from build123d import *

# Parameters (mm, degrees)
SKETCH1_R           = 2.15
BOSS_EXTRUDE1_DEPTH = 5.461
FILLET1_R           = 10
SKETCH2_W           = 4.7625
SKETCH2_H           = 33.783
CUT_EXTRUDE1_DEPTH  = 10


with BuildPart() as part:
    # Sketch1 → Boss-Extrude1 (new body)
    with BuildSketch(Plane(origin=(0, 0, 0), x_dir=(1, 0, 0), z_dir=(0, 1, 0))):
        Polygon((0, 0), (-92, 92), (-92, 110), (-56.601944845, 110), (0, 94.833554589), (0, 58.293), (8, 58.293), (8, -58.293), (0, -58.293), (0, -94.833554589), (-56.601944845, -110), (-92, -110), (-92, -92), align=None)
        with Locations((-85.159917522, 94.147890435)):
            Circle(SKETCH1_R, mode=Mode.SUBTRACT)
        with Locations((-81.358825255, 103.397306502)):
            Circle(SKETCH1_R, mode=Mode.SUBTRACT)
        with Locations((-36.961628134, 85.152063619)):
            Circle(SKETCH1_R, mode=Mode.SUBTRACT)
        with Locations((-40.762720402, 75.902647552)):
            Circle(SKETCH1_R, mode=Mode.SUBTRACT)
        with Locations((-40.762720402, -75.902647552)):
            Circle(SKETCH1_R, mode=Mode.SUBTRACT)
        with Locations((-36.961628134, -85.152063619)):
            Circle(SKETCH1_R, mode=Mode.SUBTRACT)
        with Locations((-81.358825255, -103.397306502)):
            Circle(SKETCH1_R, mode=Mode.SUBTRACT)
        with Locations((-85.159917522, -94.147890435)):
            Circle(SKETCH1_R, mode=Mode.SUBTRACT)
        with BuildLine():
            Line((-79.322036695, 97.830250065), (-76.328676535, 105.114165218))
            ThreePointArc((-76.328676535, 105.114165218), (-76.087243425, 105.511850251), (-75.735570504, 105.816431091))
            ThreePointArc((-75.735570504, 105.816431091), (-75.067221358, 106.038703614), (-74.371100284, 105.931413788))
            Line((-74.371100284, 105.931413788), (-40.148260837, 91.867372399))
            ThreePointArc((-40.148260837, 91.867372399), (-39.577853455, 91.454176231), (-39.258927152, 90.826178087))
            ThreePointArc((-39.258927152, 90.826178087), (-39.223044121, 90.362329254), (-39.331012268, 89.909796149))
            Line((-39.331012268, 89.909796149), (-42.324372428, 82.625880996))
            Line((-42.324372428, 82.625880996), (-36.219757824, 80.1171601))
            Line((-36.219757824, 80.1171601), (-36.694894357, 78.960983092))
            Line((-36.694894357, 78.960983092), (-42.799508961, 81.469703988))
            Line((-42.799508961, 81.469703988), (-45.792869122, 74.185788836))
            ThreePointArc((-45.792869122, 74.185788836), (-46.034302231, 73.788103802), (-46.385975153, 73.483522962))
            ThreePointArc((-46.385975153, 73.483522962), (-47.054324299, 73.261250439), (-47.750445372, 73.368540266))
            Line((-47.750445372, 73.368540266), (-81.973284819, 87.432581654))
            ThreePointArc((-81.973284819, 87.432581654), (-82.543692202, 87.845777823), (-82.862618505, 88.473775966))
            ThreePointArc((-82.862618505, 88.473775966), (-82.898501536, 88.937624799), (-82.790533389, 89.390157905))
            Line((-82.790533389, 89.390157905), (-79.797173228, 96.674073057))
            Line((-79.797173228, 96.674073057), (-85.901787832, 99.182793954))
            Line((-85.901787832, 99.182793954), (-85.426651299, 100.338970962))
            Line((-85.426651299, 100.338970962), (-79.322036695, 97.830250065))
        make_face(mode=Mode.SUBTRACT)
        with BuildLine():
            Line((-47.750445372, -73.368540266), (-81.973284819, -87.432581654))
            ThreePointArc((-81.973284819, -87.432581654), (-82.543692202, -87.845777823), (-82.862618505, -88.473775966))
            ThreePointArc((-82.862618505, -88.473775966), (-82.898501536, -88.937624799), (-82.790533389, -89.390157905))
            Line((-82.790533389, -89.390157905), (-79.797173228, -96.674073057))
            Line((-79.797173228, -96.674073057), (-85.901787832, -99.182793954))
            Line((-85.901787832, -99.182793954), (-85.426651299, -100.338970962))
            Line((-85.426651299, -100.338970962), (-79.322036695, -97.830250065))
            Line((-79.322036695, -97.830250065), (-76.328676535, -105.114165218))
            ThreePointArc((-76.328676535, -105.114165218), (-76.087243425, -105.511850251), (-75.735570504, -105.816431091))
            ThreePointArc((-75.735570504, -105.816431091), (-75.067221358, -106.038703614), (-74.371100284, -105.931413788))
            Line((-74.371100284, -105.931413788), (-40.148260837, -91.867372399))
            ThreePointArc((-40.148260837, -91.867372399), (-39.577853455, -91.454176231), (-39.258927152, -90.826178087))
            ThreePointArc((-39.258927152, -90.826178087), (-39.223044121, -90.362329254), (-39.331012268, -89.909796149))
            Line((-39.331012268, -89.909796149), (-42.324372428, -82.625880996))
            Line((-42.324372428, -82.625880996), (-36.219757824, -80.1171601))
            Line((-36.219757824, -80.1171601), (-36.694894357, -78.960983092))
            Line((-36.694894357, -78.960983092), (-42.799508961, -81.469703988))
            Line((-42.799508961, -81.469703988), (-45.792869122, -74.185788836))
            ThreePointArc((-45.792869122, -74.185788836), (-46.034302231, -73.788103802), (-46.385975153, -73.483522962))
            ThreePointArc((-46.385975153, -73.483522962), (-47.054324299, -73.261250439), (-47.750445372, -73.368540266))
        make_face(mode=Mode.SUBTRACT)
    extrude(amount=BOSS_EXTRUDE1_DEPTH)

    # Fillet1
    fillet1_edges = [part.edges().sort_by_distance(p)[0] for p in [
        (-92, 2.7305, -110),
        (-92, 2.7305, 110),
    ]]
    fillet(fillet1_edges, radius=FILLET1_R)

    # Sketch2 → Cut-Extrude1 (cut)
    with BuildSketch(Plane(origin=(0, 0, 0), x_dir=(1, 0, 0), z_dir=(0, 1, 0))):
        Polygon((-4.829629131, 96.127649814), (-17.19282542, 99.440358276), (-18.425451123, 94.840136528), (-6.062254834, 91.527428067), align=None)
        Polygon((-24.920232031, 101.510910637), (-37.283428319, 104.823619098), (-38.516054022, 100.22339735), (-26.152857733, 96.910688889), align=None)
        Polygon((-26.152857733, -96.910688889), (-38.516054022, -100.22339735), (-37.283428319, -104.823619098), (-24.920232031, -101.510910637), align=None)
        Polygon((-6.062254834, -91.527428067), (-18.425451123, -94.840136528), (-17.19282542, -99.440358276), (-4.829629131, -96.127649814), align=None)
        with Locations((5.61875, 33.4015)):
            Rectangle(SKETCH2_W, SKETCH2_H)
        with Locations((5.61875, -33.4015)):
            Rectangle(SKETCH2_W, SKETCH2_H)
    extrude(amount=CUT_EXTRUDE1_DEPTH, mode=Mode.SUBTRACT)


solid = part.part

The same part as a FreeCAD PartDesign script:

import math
import FreeCAD as App
import Part
import Sketcher

V = App.Vector
Q = App.Units.Quantity


def edges_at(feature, points):
    """Names of the edges that pass closest to the given points."""
    edges = feature.Shape.Edges
    near = lambda p: min(range(len(edges)), key=lambda i: edges[i].distToShape(Part.Vertex(*p))[0])
    return sorted({f"Edge{near(p) + 1}" for p in points})

doc = App.newDocument("Part")
body = doc.addObject("PartDesign::Body", "Body")

# Sketch on XZ plane
sketch1 = body.newObject("Sketcher::SketchObject", "Sketch")
sketch1.AttachmentSupport = (doc.getObject("XZ_Plane"), [""])
sketch1.MapMode = "FlatFace"
sketch1.addGeometry([
    Part.LineSegment(V(-92, -92, 0), V(0, 0, 0)),  # 0
    Part.LineSegment(V(0, 0, 0), V(-92, 92, 0)),  # 1
    Part.LineSegment(V(-92, 92, 0), V(-92, 110, 0)),  # 2
    Part.LineSegment(V(-92, 110, 0), V(-56.601945, 110, 0)),  # 3
    Part.LineSegment(V(-56.601945, 110, 0), V(0, 94.833555, 0)),  # 4
    Part.LineSegment(V(0, 94.833555, 0), V(0, 58.293, 0)),  # 5
    Part.LineSegment(V(0, 58.293, 0), V(8, 58.293, 0)),  # 6
    Part.LineSegment(V(8, 58.293, 0), V(8, -58.293, 0)),  # 7
    Part.LineSegment(V(8, -58.293, 0), V(0, -58.293, 0)),  # 8
    Part.LineSegment(V(0, -58.293, 0), V(0, -94.833555, 0)),  # 9
    Part.LineSegment(V(0, -94.833555, 0), V(-56.601945, -110, 0)),  # 10
    Part.LineSegment(V(-56.601945, -110, 0), V(-92, -110, 0)),  # 11
    Part.LineSegment(V(-92, -110, 0), V(-92, -92, 0)),  # 12
    Part.Circle(V(-36.961628, 85.152064, 0), V(0, 0, 1), 2.15),  # 13
    Part.Circle(V(-40.76272, 75.902648, 0), V(0, 0, 1), 2.15),  # 14
    Part.ArcOfCircle(Part.Circle(V(-47.180282, 74.755953, 0), V(0, 0, 1), 1.5), math.radians(-112.340449), math.radians(-58.025783)),  # 15
    Part.ArcOfCircle(Part.Circle(V(-47.180282, 74.755953, 0), V(0, 0, 1), 1.5), math.radians(-58.025783), math.radians(-22.340448)),  # 16
    Part.LineSegment(V(-45.792869, 74.185789, 0), V(-42.799509, 81.469704, 0)),  # 17
    Part.LineSegment(V(-42.799509, 81.469704, 0), V(-36.694894, 78.960983, 0)),  # 18
    Part.LineSegment(V(-36.694894, 78.960983, 0), V(-36.219758, 80.11716, 0)),  # 19
    Part.LineSegment(V(-36.219758, 80.11716, 0), V(-42.324372, 82.625881, 0)),  # 20
    Part.LineSegment(V(-42.324372, 82.625881, 0), V(-39.331012, 89.909796, 0)),  # 21
    Part.ArcOfCircle(Part.Circle(V(-40.718425, 90.47996, 0), V(0, 0, 1), 1.5), math.radians(-22.340449), math.radians(13.344886)),  # 22
    Part.ArcOfCircle(Part.Circle(V(-40.718425, 90.47996, 0), V(0, 0, 1), 1.5), math.radians(13.344886), math.radians(67.659551)),  # 23
    Part.LineSegment(V(-40.148261, 91.867372, 0), V(-74.3711, 105.931414, 0)),  # 24
    Part.ArcOfCircle(Part.Circle(V(-74.941264, 104.544001, 0), V(0, 0, 1), 1.5), math.radians(67.659551), math.radians(121.974217)),  # 25
    Part.ArcOfCircle(Part.Circle(V(-74.941264, 104.544001, 0), V(0, 0, 1), 1.5), math.radians(121.974217), math.radians(157.659551)),  # 26
    Part.LineSegment(V(-76.328677, 105.114165, 0), V(-79.322037, 97.83025, 0)),  # 27
    Part.LineSegment(V(-79.322037, 97.83025, 0), V(-85.426651, 100.338971, 0)),  # 28
    Part.LineSegment(V(-85.426651, 100.338971, 0), V(-85.901788, 99.182794, 0)),  # 29
    Part.LineSegment(V(-85.901788, 99.182794, 0), V(-79.797173, 96.674073, 0)),  # 30
    Part.LineSegment(V(-79.797173, 96.674073, 0), V(-82.790533, 89.390158, 0)),  # 31
    Part.ArcOfCircle(Part.Circle(V(-81.403121, 88.819994, 0), V(0, 0, 1), 1.5), math.radians(157.659551), math.radians(193.344886)),  # 32
    Part.ArcOfCircle(Part.Circle(V(-81.403121, 88.819994, 0), V(0, 0, 1), 1.5), math.radians(-166.655114), math.radians(-112.340449)),  # 33
    Part.LineSegment(V(-81.973285, 87.432582, 0), V(-47.750445, 73.36854, 0)),  # 34
    Part.Circle(V(-81.358825, 103.397307, 0), V(0, 0, 1), 2.15),  # 35
    Part.Circle(V(-85.159918, 94.14789, 0), V(0, 0, 1), 2.15),  # 36
    Part.Circle(V(-40.76272, -75.902648, 0), V(0, 0, 1), 2.15),  # 37
    Part.Circle(V(-36.961628, -85.152064, 0), V(0, 0, 1), 2.15),  # 38
    Part.LineSegment(V(-79.322037, -97.83025, 0), V(-76.328677, -105.114165, 0)),  # 39
    Part.ArcOfCircle(Part.Circle(V(-74.941264, -104.544001, 0), V(0, 0, 1), 1.5), math.radians(-157.659551), math.radians(-121.974217)),  # 40
    Part.ArcOfCircle(Part.Circle(V(-74.941264, -104.544001, 0), V(0, 0, 1), 1.5), math.radians(-121.974217), math.radians(-67.659551)),  # 41
    Part.LineSegment(V(-74.3711, -105.931414, 0), V(-40.148261, -91.867372, 0)),  # 42
    Part.ArcOfCircle(Part.Circle(V(-40.718425, -90.47996, 0), V(0, 0, 1), 1.5), math.radians(-67.659551), math.radians(-13.344886)),  # 43
    Part.ArcOfCircle(Part.Circle(V(-40.718425, -90.47996, 0), V(0, 0, 1), 1.5), math.radians(-13.344886), math.radians(22.340449)),  # 44
    Part.LineSegment(V(-39.331012, -89.909796, 0), V(-42.324372, -82.625881, 0)),  # 45
    Part.LineSegment(V(-42.324372, -82.625881, 0), V(-36.219758, -80.11716, 0)),  # 46
    Part.LineSegment(V(-36.219758, -80.11716, 0), V(-36.694894, -78.960983, 0)),  # 47
    Part.LineSegment(V(-36.694894, -78.960983, 0), V(-42.799509, -81.469704, 0)),  # 48
    Part.LineSegment(V(-42.799509, -81.469704, 0), V(-45.792869, -74.185789, 0)),  # 49
    Part.ArcOfCircle(Part.Circle(V(-47.180282, -74.755953, 0), V(0, 0, 1), 1.5), math.radians(22.340448), math.radians(58.025783)),  # 50
    Part.ArcOfCircle(Part.Circle(V(-47.180282, -74.755953, 0), V(0, 0, 1), 1.5), math.radians(58.025783), math.radians(112.340449)),  # 51
    Part.LineSegment(V(-47.750445, -73.36854, 0), V(-81.973285, -87.432582, 0)),  # 52
    Part.ArcOfCircle(Part.Circle(V(-81.403121, -88.819994, 0), V(0, 0, 1), 1.5), math.radians(112.340449), math.radians(166.655114)),  # 53
    Part.ArcOfCircle(Part.Circle(V(-81.403121, -88.819994, 0), V(0, 0, 1), 1.5), math.radians(166.655114), math.radians(202.340449)),  # 54
    Part.LineSegment(V(-82.790533, -89.390158, 0), V(-79.797173, -96.674073, 0)),  # 55
    Part.LineSegment(V(-79.797173, -96.674073, 0), V(-85.901788, -99.182794, 0)),  # 56
    Part.LineSegment(V(-85.901788, -99.182794, 0), V(-85.426651, -100.338971, 0)),  # 57
    Part.LineSegment(V(-85.426651, -100.338971, 0), V(-79.322037, -97.83025, 0)),  # 58
    Part.Circle(V(-81.358825, -103.397307, 0), V(0, 0, 1), 2.15),  # 59
    Part.Circle(V(-85.159918, -94.14789, 0), V(0, 0, 1), 2.15),  # 60
], False)
sketch1.addConstraint([
    Sketcher.Constraint("Coincident", 0, 2, 1, 1),
    Sketcher.Constraint("Coincident", 1, 2, 2, 1),
    Sketcher.Constraint("Coincident", 2, 2, 3, 1),
    Sketcher.Constraint("Coincident", 3, 2, 4, 1),
    Sketcher.Constraint("Coincident", 4, 2, 5, 1),
    Sketcher.Constraint("Coincident", 5, 2, 6, 1),
    Sketcher.Constraint("Coincident", 6, 2, 7, 1),
    Sketcher.Constraint("Coincident", 7, 2, 8, 1),
    Sketcher.Constraint("Coincident", 8, 2, 9, 1),
    Sketcher.Constraint("Coincident", 9, 2, 10, 1),
    Sketcher.Constraint("Coincident", 10, 2, 11, 1),
    Sketcher.Constraint("Coincident", 11, 2, 12, 1),
    Sketcher.Constraint("Coincident", 12, 2, 0, 1),
    Sketcher.Constraint("Tangent", 15, 2, 16, 1),
    Sketcher.Constraint("Tangent", 16, 2, 17, 1),
    Sketcher.Constraint("Coincident", 17, 2, 18, 1),
    Sketcher.Constraint("Coincident", 18, 2, 19, 1),
    Sketcher.Constraint("Coincident", 19, 2, 20, 1),
    Sketcher.Constraint("Coincident", 20, 2, 21, 1),
    Sketcher.Constraint("Tangent", 21, 2, 22, 1),
    Sketcher.Constraint("Tangent", 22, 2, 23, 1),
    Sketcher.Constraint("Tangent", 23, 2, 24, 1),
    Sketcher.Constraint("Tangent", 24, 2, 25, 1),
    Sketcher.Constraint("Tangent", 25, 2, 26, 1),
    Sketcher.Constraint("Tangent", 26, 2, 27, 1),
    Sketcher.Constraint("Coincident", 27, 2, 28, 1),
    Sketcher.Constraint("Coincident", 28, 2, 29, 1),
    Sketcher.Constraint("Coincident", 29, 2, 30, 1),
    Sketcher.Constraint("Coincident", 30, 2, 31, 1),
    Sketcher.Constraint("Tangent", 31, 2, 32, 1),
    Sketcher.Constraint("Tangent", 32, 2, 33, 1),
    Sketcher.Constraint("Tangent", 33, 2, 34, 1),
    Sketcher.Constraint("Tangent", 34, 2, 15, 1),
    Sketcher.Constraint("Tangent", 39, 2, 40, 1),
    Sketcher.Constraint("Tangent", 40, 2, 41, 1),
    Sketcher.Constraint("Tangent", 41, 2, 42, 1),
    Sketcher.Constraint("Tangent", 42, 2, 43, 1),
    Sketcher.Constraint("Tangent", 43, 2, 44, 1),
    Sketcher.Constraint("Tangent", 44, 2, 45, 1),
    Sketcher.Constraint("Coincident", 45, 2, 46, 1),
    Sketcher.Constraint("Coincident", 46, 2, 47, 1),
    Sketcher.Constraint("Coincident", 47, 2, 48, 1),
    Sketcher.Constraint("Coincident", 48, 2, 49, 1),
    Sketcher.Constraint("Tangent", 49, 2, 50, 1),
    Sketcher.Constraint("Tangent", 50, 2, 51, 1),
    Sketcher.Constraint("Tangent", 51, 2, 52, 1),
    Sketcher.Constraint("Tangent", 52, 2, 53, 1),
    Sketcher.Constraint("Tangent", 53, 2, 54, 1),
    Sketcher.Constraint("Tangent", 54, 2, 55, 1),
    Sketcher.Constraint("Coincident", 55, 2, 56, 1),
    Sketcher.Constraint("Coincident", 56, 2, 57, 1),
    Sketcher.Constraint("Coincident", 57, 2, 58, 1),
    Sketcher.Constraint("Coincident", 58, 2, 39, 1),
    Sketcher.Constraint("Vertical", 2),
    Sketcher.Constraint("Horizontal", 3),
    Sketcher.Constraint("Vertical", 5),
    Sketcher.Constraint("Horizontal", 6),
    Sketcher.Constraint("Vertical", 7),
    Sketcher.Constraint("Horizontal", 8),
    Sketcher.Constraint("Vertical", 9),
    Sketcher.Constraint("Horizontal", 11),
    Sketcher.Constraint("Vertical", 12),
    Sketcher.Constraint("Coincident", 0, 2, -1, 1),
    Sketcher.Constraint("Equal", 13, 14),
    Sketcher.Constraint("Equal", 15, 16),
    Sketcher.Constraint("Equal", 16, 22),
    Sketcher.Constraint("Equal", 22, 23),
    Sketcher.Constraint("Equal", 23, 25),
    Sketcher.Constraint("Equal", 25, 26),
    Sketcher.Constraint("Equal", 26, 32),
    Sketcher.Constraint("Equal", 32, 33),
    Sketcher.Constraint("Equal", 14, 35),
    Sketcher.Constraint("Equal", 35, 36),
    Sketcher.Constraint("Equal", 36, 37),
    Sketcher.Constraint("Equal", 37, 38),
    Sketcher.Constraint("Equal", 33, 40),
    Sketcher.Constraint("Equal", 40, 41),
    Sketcher.Constraint("Equal", 41, 43),
    Sketcher.Constraint("Equal", 43, 44),
    Sketcher.Constraint("Equal", 44, 50),
    Sketcher.Constraint("Equal", 50, 51),
    Sketcher.Constraint("Equal", 51, 53),
    Sketcher.Constraint("Equal", 53, 54),
    Sketcher.Constraint("Equal", 38, 59),
    Sketcher.Constraint("Equal", 59, 60),
    Sketcher.Constraint("Symmetric", 5, 2, 8, 2, -1, 1),
    Sketcher.Constraint("Symmetric", 14, 3, 37, 3, -1),
    Sketcher.Constraint("Symmetric", 13, 3, 38, 3, -1),
    Sketcher.Constraint("Symmetric", 25, 3, 40, 3, -1),
    Sketcher.Constraint("Symmetric", 22, 3, 43, 3, -1),
    Sketcher.Constraint("Symmetric", 15, 3, 50, 3, -1),
    Sketcher.Constraint("Symmetric", 32, 3, 53, 3, -1),
    Sketcher.Constraint("Symmetric", 35, 3, 59, 3, -1),
    Sketcher.Constraint("Symmetric", 36, 3, 60, 3, -1),
    Sketcher.Constraint("Symmetric", 4, 2, 9, 2, -1),
    Sketcher.Constraint("Symmetric", 3, 2, 10, 2, -1),
    Sketcher.Constraint("Symmetric", 1, 2, 12, 2, -1),
    Sketcher.Constraint("Symmetric", 20, 2, 45, 2, -1),
    Sketcher.Constraint("Symmetric", 19, 2, 46, 2, -1),
    Sketcher.Constraint("Symmetric", 18, 2, 47, 2, -1),
    Sketcher.Constraint("Symmetric", 17, 2, 48, 2, -1),
    Sketcher.Constraint("Symmetric", 30, 2, 55, 2, -1),
    Sketcher.Constraint("Symmetric", 29, 2, 56, 2, -1),
    Sketcher.Constraint("Symmetric", 28, 2, 57, 2, -1),
    Sketcher.Constraint("Symmetric", 27, 2, 58, 2, -1),
    Sketcher.Constraint("Perpendicular", 0, 1),
    Sketcher.Constraint("Perpendicular", 17, 18),
    Sketcher.Constraint("Perpendicular", 18, 19),
    Sketcher.Constraint("Perpendicular", 19, 20),
    Sketcher.Constraint("Perpendicular", 20, 21),
    Sketcher.Constraint("Perpendicular", 21, 24),
    Sketcher.Constraint("Perpendicular", 24, 27),
    Sketcher.Constraint("Perpendicular", 27, 28),
    Sketcher.Constraint("Perpendicular", 28, 29),
    Sketcher.Constraint("Perpendicular", 29, 30),
    Sketcher.Constraint("Perpendicular", 30, 31),
    Sketcher.Constraint("Perpendicular", 31, 34),
    Sketcher.Constraint("Vertical", 25, 2, 40, 2),
    Sketcher.Constraint("Vertical", 22, 2, 43, 2),
    Sketcher.Constraint("Vertical", 15, 2, 50, 2),
    Sketcher.Constraint("Vertical", 32, 2, 53, 2),
    Sketcher.Constraint("Equal", 18, 20),
    Sketcher.Constraint("Equal", 17, 21),
    Sketcher.Constraint("Equal", 21, 27),
    Sketcher.Constraint("Equal", 20, 28),
    Sketcher.Constraint("Equal", 19, 29),
    Sketcher.Constraint("Equal", 28, 30),
    Sketcher.Constraint("Diameter", 13, 4.3),
    Sketcher.Constraint("Radius", 15, 1.5),
    Sketcher.Constraint("DistanceX", 6, 1, 6, 2, 8.0),
    Sketcher.Constraint("DistanceY", 2, 1, 2, 2, 18.0),
    Sketcher.Constraint("Angle", 4, Q("-15 deg")),
    Sketcher.Constraint("Distance", 24, 37.0),
    Sketcher.Constraint("DistanceX", 1, 2, -1, 1, 92.0),
    Sketcher.Constraint("Distance", 18, 6.6),
    Sketcher.Constraint("Distance", 19, 1.25),
    Sketcher.Constraint("DistanceY", 7, 2, 7, 1, 116.586),
    Sketcher.Constraint("Distance", 17, 7.875),
    Sketcher.Constraint("DistanceY", -1, 1, 25, 3, 104.544001),
    Sketcher.Constraint("DistanceX", 24, 2, -1, 1, 74.3711),
    Sketcher.Constraint("DistanceX", 3, 1, 3, 2, 35.398055),
    Sketcher.Constraint("DistanceX", 13, 3, -1, 1, 36.961628),
    Sketcher.Constraint("DistanceX", 14, 3, -1, 1, 40.76272),
    Sketcher.Constraint("DistanceX", 15, 3, -1, 1, 47.180282),
    Sketcher.Constraint("DistanceY", -1, 1, 36, 3, 94.14789),
    Sketcher.Constraint("DistanceY", -1, 1, 22, 2, 90.826178),
    Sketcher.Constraint("DistanceX", 25, 2, -1, 1, 75.735571),
    Sketcher.Constraint("DistanceX", 32, 2, -1, 1, 82.862619),
    Sketcher.Constraint("DistanceY", -1, 1, 13, 3, 85.152064),
    Sketcher.Constraint("DistanceY", -1, 1, 14, 3, 75.902648),
    Sketcher.Constraint("DistanceX", 35, 3, -1, 1, 81.358825),
    Sketcher.Constraint("DistanceY", -1, 1, 35, 3, 103.397307),
    Sketcher.Constraint("DistanceX", 36, 3, -1, 1, 85.159918),
    Sketcher.Constraint("DistanceX", 15, 2, -1, 1, 46.385975),
])
pad1 = body.newObject("PartDesign::Pad", "Pad")
pad1.Profile = sketch1
pad1.Length = 5.461
pad1.Reversed = True
doc.recompute()

fillet = body.newObject("PartDesign::Fillet", "Fillet")
fillet.Base = (pad1, edges_at(pad1, [(-92, 2.731, -110), (-92, 2.731, 110)]))
fillet.Radius = 10

# Sketch on XZ plane
sketch2 = body.newObject("Sketcher::SketchObject", "Sketch001")
sketch2.AttachmentSupport = (doc.getObject("XZ_Plane"), [""])
sketch2.MapMode = "FlatFace"
sketch2.addGeometry([
    Part.LineSegment(V(-4.829629, -96.12765, 0), V(-17.192825, -99.440358, 0)),  # 0
    Part.LineSegment(V(-17.192825, -99.440358, 0), V(-18.425451, -94.840137, 0)),  # 1
    Part.LineSegment(V(-18.425451, -94.840137, 0), V(-6.062255, -91.527428, 0)),  # 2
    Part.LineSegment(V(-6.062255, -91.527428, 0), V(-4.829629, -96.12765, 0)),  # 3
    Part.LineSegment(V(-24.920232, -101.510911, 0), V(-37.283428, -104.823619, 0)),  # 4
    Part.LineSegment(V(-37.283428, -104.823619, 0), V(-38.516054, -100.223397, 0)),  # 5
    Part.LineSegment(V(-38.516054, -100.223397, 0), V(-26.152858, -96.910689, 0)),  # 6
    Part.LineSegment(V(-26.152858, -96.910689, 0), V(-24.920232, -101.510911, 0)),  # 7
    Part.LineSegment(V(-26.152858, 96.910689, 0), V(-38.516054, 100.223397, 0)),  # 8
    Part.LineSegment(V(-38.516054, 100.223397, 0), V(-37.283428, 104.823619, 0)),  # 9
    Part.LineSegment(V(-37.283428, 104.823619, 0), V(-24.920232, 101.510911, 0)),  # 10
    Part.LineSegment(V(-24.920232, 101.510911, 0), V(-26.152858, 96.910689, 0)),  # 11
    Part.LineSegment(V(-6.062255, 91.527428, 0), V(-18.425451, 94.840137, 0)),  # 12
    Part.LineSegment(V(-18.425451, 94.840137, 0), V(-17.192825, 99.440358, 0)),  # 13
    Part.LineSegment(V(-17.192825, 99.440358, 0), V(-4.829629, 96.12765, 0)),  # 14
    Part.LineSegment(V(-4.829629, 96.12765, 0), V(-6.062255, 91.527428, 0)),  # 15
    Part.LineSegment(V(3.2375, -50.293, 0), V(3.2375, -16.51, 0)),  # 16
    Part.LineSegment(V(3.2375, -16.51, 0), V(8, -16.51, 0)),  # 17
    Part.LineSegment(V(8, -16.51, 0), V(8, -50.293, 0)),  # 18
    Part.LineSegment(V(8, -50.293, 0), V(3.2375, -50.293, 0)),  # 19
    Part.LineSegment(V(3.2375, 16.51, 0), V(3.2375, 50.293, 0)),  # 20
    Part.LineSegment(V(3.2375, 50.293, 0), V(8, 50.293, 0)),  # 21
    Part.LineSegment(V(8, 50.293, 0), V(8, 16.51, 0)),  # 22
    Part.LineSegment(V(8, 16.51, 0), V(3.2375, 16.51, 0)),  # 23
], False)
sketch2.addConstraint([
    Sketcher.Constraint("Coincident", 0, 2, 1, 1),
    Sketcher.Constraint("Coincident", 1, 2, 2, 1),
    Sketcher.Constraint("Coincident", 2, 2, 3, 1),
    Sketcher.Constraint("Coincident", 3, 2, 0, 1),
    Sketcher.Constraint("Coincident", 4, 2, 5, 1),
    Sketcher.Constraint("Coincident", 5, 2, 6, 1),
    Sketcher.Constraint("Coincident", 6, 2, 7, 1),
    Sketcher.Constraint("Coincident", 7, 2, 4, 1),
    Sketcher.Constraint("Coincident", 8, 2, 9, 1),
    Sketcher.Constraint("Coincident", 9, 2, 10, 1),
    Sketcher.Constraint("Coincident", 10, 2, 11, 1),
    Sketcher.Constraint("Coincident", 11, 2, 8, 1),
    Sketcher.Constraint("Coincident", 12, 2, 13, 1),
    Sketcher.Constraint("Coincident", 13, 2, 14, 1),
    Sketcher.Constraint("Coincident", 14, 2, 15, 1),
    Sketcher.Constraint("Coincident", 15, 2, 12, 1),
    Sketcher.Constraint("Coincident", 16, 2, 17, 1),
    Sketcher.Constraint("Coincident", 17, 2, 18, 1),
    Sketcher.Constraint("Coincident", 18, 2, 19, 1),
    Sketcher.Constraint("Coincident", 19, 2, 16, 1),
    Sketcher.Constraint("Coincident", 20, 2, 21, 1),
    Sketcher.Constraint("Coincident", 21, 2, 22, 1),
    Sketcher.Constraint("Coincident", 22, 2, 23, 1),
    Sketcher.Constraint("Coincident", 23, 2, 20, 1),
    Sketcher.Constraint("Vertical", 16),
    Sketcher.Constraint("Horizontal", 17),
    Sketcher.Constraint("Vertical", 18),
    Sketcher.Constraint("Horizontal", 19),
    Sketcher.Constraint("Vertical", 20),
    Sketcher.Constraint("Horizontal", 21),
    Sketcher.Constraint("Vertical", 22),
    Sketcher.Constraint("Horizontal", 23),
    Sketcher.Constraint("Symmetric", 5, 2, 8, 2, -1),
    Sketcher.Constraint("Symmetric", 4, 2, 9, 2, -1),
    Sketcher.Constraint("Symmetric", 7, 2, 10, 2, -1),
    Sketcher.Constraint("Symmetric", 6, 2, 11, 2, -1),
    Sketcher.Constraint("Symmetric", 1, 2, 12, 2, -1),
    Sketcher.Constraint("Symmetric", 0, 2, 13, 2, -1),
    Sketcher.Constraint("Symmetric", 3, 2, 14, 2, -1),
    Sketcher.Constraint("Symmetric", 2, 2, 15, 2, -1),
    Sketcher.Constraint("Symmetric", 19, 2, 20, 2, -1),
    Sketcher.Constraint("Symmetric", 17, 2, 22, 2, -1),
    Sketcher.Constraint("Perpendicular", 0, 1),
    Sketcher.Constraint("Perpendicular", 1, 2),
    Sketcher.Constraint("Perpendicular", 2, 3),
    Sketcher.Constraint("Perpendicular", 3, 4),
    Sketcher.Constraint("Perpendicular", 4, 5),
    Sketcher.Constraint("Perpendicular", 5, 6),
    Sketcher.Constraint("Perpendicular", 6, 7),
    Sketcher.Constraint("Equal", 2, 4),
    Sketcher.Constraint("Equal", 3, 5),
    Sketcher.Constraint("Angle", 0, Q("-165 deg")),
    Sketcher.Constraint("DistanceX", -1, 1, 17, 2, 8.0),
    Sketcher.Constraint("DistanceY", 16, 1, 16, 2, 33.783),
    Sketcher.Constraint("DistanceY", 16, 2, -1, 1, 16.51),
    Sketcher.Constraint("DistanceX", 17, 1, 17, 2, 4.7625),
    Sketcher.Constraint("Distance", 1, 4.7625),
    Sketcher.Constraint("DistanceX", 4, 2, 3, 2, 32.453799),
    Sketcher.Constraint("DistanceY", 6, 2, 10, 2, 198.4216),
    Sketcher.Constraint("DistanceY", 0, 2, -1, 1, 99.440358),
    Sketcher.Constraint("DistanceX", 1, 2, -1, 1, 18.425451),
    Sketcher.Constraint("DistanceY", 2, 2, -1, 1, 91.527428),
])
pocket1 = body.newObject("PartDesign::Pocket", "Pocket")
pocket1.Profile = sketch2
pocket1.Length = 10

doc.recompute()
